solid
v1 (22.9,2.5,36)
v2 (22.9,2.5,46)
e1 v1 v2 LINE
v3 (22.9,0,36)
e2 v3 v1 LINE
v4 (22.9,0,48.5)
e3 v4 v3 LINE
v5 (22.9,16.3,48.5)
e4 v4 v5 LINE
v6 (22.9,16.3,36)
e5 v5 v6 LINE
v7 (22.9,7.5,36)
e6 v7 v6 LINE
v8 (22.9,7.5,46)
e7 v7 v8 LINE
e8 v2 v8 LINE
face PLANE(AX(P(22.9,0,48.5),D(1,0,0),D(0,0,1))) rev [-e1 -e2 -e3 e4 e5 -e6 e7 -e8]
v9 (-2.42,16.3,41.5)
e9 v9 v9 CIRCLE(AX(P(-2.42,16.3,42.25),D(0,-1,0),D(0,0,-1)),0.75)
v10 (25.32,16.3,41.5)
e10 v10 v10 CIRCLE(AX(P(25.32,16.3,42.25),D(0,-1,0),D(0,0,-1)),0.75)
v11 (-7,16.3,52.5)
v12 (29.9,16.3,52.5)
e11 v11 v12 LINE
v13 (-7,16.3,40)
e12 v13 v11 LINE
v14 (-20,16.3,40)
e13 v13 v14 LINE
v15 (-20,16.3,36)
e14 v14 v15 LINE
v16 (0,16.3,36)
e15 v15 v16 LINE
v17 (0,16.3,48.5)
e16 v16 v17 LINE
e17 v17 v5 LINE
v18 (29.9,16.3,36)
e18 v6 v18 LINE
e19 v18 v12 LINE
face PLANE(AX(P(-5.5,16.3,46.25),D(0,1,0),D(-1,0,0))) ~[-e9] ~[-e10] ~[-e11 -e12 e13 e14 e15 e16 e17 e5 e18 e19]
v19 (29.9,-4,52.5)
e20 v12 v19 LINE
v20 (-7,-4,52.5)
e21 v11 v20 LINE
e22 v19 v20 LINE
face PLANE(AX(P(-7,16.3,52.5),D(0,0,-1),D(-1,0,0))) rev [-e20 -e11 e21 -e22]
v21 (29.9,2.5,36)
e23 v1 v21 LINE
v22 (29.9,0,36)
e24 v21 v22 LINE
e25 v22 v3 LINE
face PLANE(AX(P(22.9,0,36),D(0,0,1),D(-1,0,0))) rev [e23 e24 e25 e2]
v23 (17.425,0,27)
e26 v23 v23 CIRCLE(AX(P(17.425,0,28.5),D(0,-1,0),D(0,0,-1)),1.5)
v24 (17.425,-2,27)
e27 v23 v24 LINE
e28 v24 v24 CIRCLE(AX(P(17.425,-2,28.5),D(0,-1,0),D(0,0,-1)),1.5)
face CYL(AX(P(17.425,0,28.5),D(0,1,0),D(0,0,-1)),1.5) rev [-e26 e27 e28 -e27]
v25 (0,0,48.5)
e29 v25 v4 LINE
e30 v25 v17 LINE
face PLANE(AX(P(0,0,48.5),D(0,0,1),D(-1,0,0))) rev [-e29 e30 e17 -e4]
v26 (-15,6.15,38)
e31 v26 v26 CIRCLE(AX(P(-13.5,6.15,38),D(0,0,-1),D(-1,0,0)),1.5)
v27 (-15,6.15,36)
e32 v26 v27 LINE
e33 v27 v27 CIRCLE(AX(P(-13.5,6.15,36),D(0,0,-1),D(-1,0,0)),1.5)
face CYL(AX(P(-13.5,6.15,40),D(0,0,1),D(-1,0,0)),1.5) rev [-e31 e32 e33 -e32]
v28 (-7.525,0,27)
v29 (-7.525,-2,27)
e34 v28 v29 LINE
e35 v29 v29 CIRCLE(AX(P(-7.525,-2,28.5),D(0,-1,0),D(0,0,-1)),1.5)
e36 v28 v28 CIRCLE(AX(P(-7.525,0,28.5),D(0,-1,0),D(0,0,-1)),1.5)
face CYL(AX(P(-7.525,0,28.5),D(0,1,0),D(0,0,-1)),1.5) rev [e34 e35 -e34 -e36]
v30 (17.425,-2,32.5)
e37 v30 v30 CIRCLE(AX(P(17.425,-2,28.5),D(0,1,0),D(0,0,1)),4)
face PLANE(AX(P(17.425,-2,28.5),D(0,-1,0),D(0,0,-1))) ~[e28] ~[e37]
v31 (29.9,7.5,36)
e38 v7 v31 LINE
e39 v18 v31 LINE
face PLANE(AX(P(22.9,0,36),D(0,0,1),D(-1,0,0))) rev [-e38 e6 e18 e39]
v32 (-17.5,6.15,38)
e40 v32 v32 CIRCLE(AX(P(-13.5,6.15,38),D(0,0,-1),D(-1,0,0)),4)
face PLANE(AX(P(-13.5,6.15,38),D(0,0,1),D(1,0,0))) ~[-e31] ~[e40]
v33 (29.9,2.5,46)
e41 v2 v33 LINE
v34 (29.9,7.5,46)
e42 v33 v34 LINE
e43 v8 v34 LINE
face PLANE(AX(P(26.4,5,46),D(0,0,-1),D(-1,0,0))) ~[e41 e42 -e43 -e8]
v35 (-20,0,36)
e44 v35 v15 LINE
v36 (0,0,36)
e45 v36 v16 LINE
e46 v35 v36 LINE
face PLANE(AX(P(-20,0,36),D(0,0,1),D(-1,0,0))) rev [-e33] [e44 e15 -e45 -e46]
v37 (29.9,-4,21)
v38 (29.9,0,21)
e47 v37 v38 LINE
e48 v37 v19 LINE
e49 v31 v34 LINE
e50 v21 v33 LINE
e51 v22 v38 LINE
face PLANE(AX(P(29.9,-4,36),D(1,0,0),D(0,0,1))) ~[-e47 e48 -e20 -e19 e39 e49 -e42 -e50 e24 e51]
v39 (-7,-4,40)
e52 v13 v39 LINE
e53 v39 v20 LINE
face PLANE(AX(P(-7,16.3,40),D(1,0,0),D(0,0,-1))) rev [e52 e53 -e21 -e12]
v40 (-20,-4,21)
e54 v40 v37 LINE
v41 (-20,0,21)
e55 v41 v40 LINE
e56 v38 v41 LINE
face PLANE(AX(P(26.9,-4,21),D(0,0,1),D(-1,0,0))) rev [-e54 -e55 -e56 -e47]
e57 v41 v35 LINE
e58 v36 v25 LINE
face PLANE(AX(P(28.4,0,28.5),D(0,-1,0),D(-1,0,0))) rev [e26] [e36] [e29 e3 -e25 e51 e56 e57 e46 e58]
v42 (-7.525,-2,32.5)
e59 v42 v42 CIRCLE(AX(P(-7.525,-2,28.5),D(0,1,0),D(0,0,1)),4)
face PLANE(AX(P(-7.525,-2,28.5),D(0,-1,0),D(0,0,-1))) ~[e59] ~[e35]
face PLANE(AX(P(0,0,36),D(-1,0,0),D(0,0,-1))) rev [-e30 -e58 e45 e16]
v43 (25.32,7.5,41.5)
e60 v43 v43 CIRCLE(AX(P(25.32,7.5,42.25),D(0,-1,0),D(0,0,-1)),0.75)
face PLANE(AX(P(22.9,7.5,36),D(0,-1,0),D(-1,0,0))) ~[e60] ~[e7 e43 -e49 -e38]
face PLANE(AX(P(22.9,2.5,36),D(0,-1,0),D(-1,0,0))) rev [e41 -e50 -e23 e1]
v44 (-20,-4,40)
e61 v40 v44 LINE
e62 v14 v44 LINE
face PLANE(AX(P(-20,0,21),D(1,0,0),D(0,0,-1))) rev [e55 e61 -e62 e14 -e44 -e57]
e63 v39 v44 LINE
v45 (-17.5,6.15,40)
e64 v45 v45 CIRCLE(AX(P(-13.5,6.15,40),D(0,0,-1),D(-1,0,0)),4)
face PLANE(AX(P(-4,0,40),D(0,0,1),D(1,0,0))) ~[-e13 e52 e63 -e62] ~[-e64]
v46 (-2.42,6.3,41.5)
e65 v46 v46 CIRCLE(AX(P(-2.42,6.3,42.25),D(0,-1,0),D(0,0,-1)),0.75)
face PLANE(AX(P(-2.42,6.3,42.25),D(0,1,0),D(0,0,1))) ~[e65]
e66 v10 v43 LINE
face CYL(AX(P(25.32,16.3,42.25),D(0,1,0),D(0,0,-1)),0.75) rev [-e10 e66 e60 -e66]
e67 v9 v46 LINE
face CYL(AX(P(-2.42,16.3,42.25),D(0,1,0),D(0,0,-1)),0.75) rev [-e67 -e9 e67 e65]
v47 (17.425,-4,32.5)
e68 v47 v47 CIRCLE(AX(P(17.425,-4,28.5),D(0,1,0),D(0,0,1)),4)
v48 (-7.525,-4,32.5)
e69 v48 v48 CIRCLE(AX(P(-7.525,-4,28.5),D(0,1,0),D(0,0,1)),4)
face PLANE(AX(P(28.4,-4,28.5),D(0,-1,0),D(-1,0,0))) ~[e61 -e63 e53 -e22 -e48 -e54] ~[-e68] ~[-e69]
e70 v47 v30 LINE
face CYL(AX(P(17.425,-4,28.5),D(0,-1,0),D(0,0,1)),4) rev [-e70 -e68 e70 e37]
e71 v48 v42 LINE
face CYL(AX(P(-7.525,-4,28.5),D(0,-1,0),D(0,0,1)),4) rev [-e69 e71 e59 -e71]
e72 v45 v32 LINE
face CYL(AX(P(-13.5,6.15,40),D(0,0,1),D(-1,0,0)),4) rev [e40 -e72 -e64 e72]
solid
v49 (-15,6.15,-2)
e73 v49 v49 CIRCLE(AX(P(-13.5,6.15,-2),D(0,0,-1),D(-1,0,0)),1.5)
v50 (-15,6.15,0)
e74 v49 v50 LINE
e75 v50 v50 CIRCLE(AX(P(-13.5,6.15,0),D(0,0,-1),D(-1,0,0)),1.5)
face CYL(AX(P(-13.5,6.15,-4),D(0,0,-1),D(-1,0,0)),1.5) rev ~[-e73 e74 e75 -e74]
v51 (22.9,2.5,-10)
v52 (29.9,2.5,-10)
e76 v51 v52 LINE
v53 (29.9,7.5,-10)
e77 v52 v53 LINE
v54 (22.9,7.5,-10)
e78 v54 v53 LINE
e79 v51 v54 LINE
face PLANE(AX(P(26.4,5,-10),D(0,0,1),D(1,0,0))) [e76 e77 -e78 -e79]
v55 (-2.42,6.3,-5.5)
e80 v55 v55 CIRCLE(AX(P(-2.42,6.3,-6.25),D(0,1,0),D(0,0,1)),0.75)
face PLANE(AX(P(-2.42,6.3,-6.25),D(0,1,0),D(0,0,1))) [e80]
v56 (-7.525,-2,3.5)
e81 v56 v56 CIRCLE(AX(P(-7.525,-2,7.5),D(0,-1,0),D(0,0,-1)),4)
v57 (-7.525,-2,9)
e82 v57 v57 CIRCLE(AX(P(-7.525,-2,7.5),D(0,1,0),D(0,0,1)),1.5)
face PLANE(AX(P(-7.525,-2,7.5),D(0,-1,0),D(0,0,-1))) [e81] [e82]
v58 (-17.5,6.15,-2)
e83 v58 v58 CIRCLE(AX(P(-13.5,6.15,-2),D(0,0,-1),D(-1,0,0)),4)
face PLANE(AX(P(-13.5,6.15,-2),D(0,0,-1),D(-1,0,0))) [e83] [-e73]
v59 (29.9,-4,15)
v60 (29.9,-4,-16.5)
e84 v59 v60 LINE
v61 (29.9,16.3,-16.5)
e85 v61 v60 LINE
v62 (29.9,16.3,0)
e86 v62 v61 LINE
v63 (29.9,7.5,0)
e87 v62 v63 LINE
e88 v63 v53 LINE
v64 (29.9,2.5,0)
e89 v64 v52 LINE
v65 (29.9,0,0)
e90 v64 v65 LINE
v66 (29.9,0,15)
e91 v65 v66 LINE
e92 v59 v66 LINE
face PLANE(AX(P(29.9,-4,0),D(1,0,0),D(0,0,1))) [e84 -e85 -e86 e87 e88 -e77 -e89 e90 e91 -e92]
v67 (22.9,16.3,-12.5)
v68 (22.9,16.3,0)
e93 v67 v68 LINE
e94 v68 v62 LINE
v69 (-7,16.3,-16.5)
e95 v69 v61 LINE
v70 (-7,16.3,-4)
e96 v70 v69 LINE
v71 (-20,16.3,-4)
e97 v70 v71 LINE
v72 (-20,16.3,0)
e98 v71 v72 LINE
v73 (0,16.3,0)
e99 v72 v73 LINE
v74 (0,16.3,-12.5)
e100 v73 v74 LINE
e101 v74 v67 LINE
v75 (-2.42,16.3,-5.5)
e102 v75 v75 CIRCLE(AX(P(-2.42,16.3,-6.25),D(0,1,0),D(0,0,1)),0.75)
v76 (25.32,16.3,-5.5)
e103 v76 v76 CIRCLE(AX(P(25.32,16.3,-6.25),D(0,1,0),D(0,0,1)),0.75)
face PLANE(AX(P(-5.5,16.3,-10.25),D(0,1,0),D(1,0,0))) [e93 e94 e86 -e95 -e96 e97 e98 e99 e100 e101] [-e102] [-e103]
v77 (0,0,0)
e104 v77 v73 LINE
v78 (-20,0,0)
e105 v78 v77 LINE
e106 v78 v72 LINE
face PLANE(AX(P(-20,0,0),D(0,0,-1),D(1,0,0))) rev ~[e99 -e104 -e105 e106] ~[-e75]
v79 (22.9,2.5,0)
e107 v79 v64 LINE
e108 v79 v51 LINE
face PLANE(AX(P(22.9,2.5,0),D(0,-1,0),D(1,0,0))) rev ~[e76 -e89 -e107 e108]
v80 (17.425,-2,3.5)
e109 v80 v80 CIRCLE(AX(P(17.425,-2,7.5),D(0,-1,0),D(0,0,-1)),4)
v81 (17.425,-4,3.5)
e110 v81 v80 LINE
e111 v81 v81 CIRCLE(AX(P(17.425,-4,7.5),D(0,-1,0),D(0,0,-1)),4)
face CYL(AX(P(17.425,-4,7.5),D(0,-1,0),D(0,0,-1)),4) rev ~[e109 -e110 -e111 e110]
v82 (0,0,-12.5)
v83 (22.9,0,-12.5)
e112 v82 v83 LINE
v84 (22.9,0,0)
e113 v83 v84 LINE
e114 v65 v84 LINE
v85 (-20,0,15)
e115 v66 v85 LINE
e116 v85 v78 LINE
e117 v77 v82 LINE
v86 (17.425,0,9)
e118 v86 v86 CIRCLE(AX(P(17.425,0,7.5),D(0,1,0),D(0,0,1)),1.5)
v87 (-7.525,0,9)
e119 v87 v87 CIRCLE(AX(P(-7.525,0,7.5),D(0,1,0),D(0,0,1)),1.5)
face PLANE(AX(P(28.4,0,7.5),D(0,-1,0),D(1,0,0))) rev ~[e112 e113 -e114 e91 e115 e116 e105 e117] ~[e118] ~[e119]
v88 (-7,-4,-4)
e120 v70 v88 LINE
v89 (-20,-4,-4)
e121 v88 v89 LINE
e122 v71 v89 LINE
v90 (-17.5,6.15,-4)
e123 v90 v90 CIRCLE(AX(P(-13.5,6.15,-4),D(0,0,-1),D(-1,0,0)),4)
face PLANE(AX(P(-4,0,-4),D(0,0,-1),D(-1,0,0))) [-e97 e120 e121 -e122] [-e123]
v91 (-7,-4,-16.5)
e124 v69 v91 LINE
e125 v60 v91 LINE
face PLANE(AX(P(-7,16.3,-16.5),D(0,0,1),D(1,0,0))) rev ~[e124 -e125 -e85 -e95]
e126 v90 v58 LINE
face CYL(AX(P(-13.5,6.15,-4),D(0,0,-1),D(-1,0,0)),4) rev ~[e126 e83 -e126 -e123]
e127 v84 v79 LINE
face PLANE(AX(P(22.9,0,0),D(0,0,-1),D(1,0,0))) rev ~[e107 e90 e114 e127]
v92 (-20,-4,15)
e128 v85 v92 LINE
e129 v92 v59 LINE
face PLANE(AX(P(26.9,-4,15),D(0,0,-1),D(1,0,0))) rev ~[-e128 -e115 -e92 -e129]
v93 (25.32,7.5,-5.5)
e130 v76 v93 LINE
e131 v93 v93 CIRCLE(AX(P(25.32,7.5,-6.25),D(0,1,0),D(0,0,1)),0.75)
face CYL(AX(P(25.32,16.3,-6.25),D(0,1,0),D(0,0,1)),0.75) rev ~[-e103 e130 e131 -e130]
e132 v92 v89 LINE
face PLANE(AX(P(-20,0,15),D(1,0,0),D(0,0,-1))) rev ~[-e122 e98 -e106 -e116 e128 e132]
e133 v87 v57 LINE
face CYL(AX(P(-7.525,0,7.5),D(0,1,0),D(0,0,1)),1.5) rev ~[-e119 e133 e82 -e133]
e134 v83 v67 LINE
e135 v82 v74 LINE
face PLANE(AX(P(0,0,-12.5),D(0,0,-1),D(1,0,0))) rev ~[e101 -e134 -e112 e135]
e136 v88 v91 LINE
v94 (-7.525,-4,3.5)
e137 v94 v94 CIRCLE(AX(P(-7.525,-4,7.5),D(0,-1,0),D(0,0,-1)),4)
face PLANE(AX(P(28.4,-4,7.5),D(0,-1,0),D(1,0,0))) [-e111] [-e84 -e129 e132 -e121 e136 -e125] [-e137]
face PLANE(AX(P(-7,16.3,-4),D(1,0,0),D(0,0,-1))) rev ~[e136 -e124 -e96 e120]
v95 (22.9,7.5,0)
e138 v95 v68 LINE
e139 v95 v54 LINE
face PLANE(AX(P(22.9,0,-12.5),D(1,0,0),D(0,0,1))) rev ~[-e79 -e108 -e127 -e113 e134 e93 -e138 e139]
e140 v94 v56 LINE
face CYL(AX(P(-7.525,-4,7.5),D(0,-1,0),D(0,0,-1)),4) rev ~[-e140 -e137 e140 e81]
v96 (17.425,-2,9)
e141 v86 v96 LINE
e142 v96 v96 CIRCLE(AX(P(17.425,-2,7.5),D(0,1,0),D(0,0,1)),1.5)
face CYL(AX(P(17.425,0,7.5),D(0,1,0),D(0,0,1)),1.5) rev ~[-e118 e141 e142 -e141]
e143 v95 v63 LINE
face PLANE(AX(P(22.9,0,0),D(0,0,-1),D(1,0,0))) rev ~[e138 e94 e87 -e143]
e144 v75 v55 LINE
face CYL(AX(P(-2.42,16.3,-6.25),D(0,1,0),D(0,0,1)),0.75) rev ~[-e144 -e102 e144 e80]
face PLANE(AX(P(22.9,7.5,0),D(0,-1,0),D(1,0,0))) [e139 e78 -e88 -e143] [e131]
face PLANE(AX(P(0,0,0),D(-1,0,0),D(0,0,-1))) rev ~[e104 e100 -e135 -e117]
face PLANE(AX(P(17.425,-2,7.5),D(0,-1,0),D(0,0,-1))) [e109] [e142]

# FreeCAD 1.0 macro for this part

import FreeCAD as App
import Part
import Sketcher
from FreeCAD import Vector


def add_polygon(sketch, points):
    """Adds a closed chain of lines whose ends are joined by coincident constraints."""
    first, n = sketch.GeometryCount, len(points)
    for a, b in zip(points, points[1:] + points[:1]):
        sketch.addGeometry(Part.LineSegment(App.Vector(*a, 0), App.Vector(*b, 0)), False)
    for i in range(n):
        sketch.addConstraint(Sketcher.Constraint("Coincident", first + i, 2, first + (i + 1) % n, 1))

doc = App.newDocument("Part")
body = doc.addObject("PartDesign::Body", "Body")

sketch1 = body.newObject("Sketcher::SketchObject", "Sketch")
sketch1.AttachmentSupport = (doc.getObject("XZ_Plane"), [""])
sketch1.MapMode = "FlatFace"
add_polygon(sketch1, [(-20, 0), (0, 0), (0, -12.5), (22.9, -12.5), (22.9, 0), (26.9, 0), (26.9, -16.5), (-4, -16.5), (-4, -4), (-20, -4)])
sketch1.addConstraint([
    Sketcher.Constraint("Horizontal", 0),
    Sketcher.Constraint("Vertical", 1),
    Sketcher.Constraint("Horizontal", 2),
    Sketcher.Constraint("Vertical", 3),
    Sketcher.Constraint("Horizontal", 4),
    Sketcher.Constraint("Vertical", 5),
    Sketcher.Constraint("Horizontal", 6),
    Sketcher.Constraint("Vertical", 7),
    Sketcher.Constraint("Horizontal", 8),
    Sketcher.Constraint("Vertical", 9),
    Sketcher.Constraint("Coincident", 0, 2, -1, 1),
    Sketcher.Constraint("PointOnObject", 3, 2, -1),
    Sketcher.Constraint("Equal", 3, 7),
    Sketcher.Constraint("Equal", 4, 9),
    Sketcher.Constraint("DistanceX", 0, 1, 0, 2, 20.0),
    Sketcher.Constraint("DistanceX", 4, 1, 4, 2, 4.0),
    Sketcher.Constraint("DistanceX", 8, 2, 8, 1, 16.0),
    Sketcher.Constraint("DistanceX", 2, 1, 2, 2, 22.9),
    Sketcher.Constraint("DistanceY", 1, 2, 1, 1, 12.5),
])
pad1 = body.newObject("PartDesign::Pad", "Pad")
pad1.Profile = sketch1
pad1.Length = 16.3
pad1.Reversed = True

sketch2 = body.newObject("Sketcher::SketchObject", "Sketch001")
sketch2.AttachmentSupport = (doc.getObject("XZ_Plane"), [""])
sketch2.MapMode = "FlatFace"
add_polygon(sketch2, [(-20, 15), (-20, -4), (-4, -4), (-4, -16), (27, -16), (27, 15)])
sketch2.addConstraint([
    Sketcher.Constraint("Vertical", 0),
    Sketcher.Constraint("Horizontal", 1),
    Sketcher.Constraint("Vertical", 2),
    Sketcher.Constraint("Horizontal", 3),
    Sketcher.Constraint("Vertical", 4),
    Sketcher.Constraint("Horizontal", 5),
    Sketcher.Constraint("DistanceX", 1, 1, 1, 2, 16.0),
    Sketcher.Constraint("DistanceY", 0, 2, 0, 1, 19.0),
    Sketcher.Constraint("DistanceX", 3, 1, 3, 2, 30.9),
    Sketcher.Constraint("DistanceY", 2, 2, 2, 1, 12.5),
    Sketcher.Constraint("DistanceX", 0, 2, -1, 1, 20.0),
    Sketcher.Constraint("DistanceY", 0, 2, -1, 1, 4.0),
])
pad2 = body.newObject("PartDesign::Pad", "Pad001")
pad2.Profile = sketch2
pad2.Length = 4

sketch3 = body.newObject("Sketcher::SketchObject", "Sketch002")
sketch3.AttachmentSupport = (doc.getObject("XZ_Plane"), [""])
sketch3.MapMode = "FlatFace"
sketch3.AttachmentOffset = App.Placement(Vector(0, 0, -16.3), App.Rotation())
add_polygon(sketch3, [(-7, -16.5), (-7, -4), (-4, -4), (-4, -16.5)])
add_polygon(sketch3, [(26.9, -16.5), (26.9, 0), (29.9, 0), (29.9, -16.5)])
sketch3.addConstraint([
    Sketcher.Constraint("Vertical", 0),
    Sketcher.Constraint("Horizontal", 1),
    Sketcher.Constraint("Vertical", 2),
    Sketcher.Constraint("Horizontal", 3),
    Sketcher.Constraint("Vertical", 4),
    Sketcher.Constraint("Horizontal", 5),
    Sketcher.Constraint("Vertical", 6),
    Sketcher.Constraint("Horizontal", 7),
    Sketcher.Constraint("PointOnObject", 4, 2, -1),
    Sketcher.Constraint("Horizontal", 3, 2, 6, 2),
    Sketcher.Constraint("Equal", 3, 5),
    Sketcher.Constraint("DistanceX", 1, 1, 1, 2, 3.0),
    Sketcher.Constraint("DistanceY", 0, 1, 0, 2, 12.5),
    Sketcher.Constraint("DistanceY", 4, 1, 4, 2, 16.5),
    Sketcher.Constraint("DistanceX", 0, 2, -1, 1, 7.0),
    Sketcher.Constraint("DistanceX", -1, 1, 4, 2, 26.9),
])
pad3 = body.newObject("PartDesign::Pad", "Pad002")
pad3.Profile = sketch3
pad3.Length = 20.3

sketch4 = body.newObject("Sketcher::SketchObject", "Sketch003")
sketch4.AttachmentSupport = (doc.getObject("XZ_Plane"), [""])
sketch4.MapMode = "FlatFace"
sketch4.AttachmentOffset = App.Placement(Vector(0, 0, 4), App.Rotation())
add_polygon(sketch4, [(26.9, 15), (26.9, 0), (29.9, 0), (29.9, 15)])
sketch4.addConstraint([
    Sketcher.Constraint("Vertical", 0),
    Sketcher.Constraint("Horizontal", 1),
    Sketcher.Constraint("Vertical", 2),
    Sketcher.Constraint("Horizontal", 3),
    Sketcher.Constraint("PointOnObject", 0, 2, -1),
    Sketcher.Constraint("DistanceX", 1, 1, 1, 2, 3.0),
    Sketcher.Constraint("DistanceY", 0, 2, 0, 1, 15.0),
    Sketcher.Constraint("DistanceX", -1, 1, 0, 2, 26.9),
])
pad4 = body.newObject("PartDesign::Pad", "Pad003")
pad4.Profile = sketch4
pad4.Length = 4
pad4.Reversed = True

sketch5 = body.newObject("Sketcher::SketchObject", "Sketch004")
sketch5.AttachmentSupport = (doc.getObject("XZ_Plane"), [""])
sketch5.MapMode = "FlatFace"
sketch5.addGeometry([
    Part.Circle(Vector(-7.5, 7.5, 0), Vector(0, 0, 1), 1.5),
    Part.Circle(Vector(17.4, 7.5, 0), Vector(0, 0, 1), 1.5),
], False)
sketch5.addConstraint([
    Sketcher.Constraint("Equal", 0, 1),
    Sketcher.Constraint("Horizontal", 0, 3, 1, 3),
    Sketcher.Constraint("Diameter", 0, 3.0),
    Sketcher.Constraint("DistanceY", -1, 1, 0, 3, 7.5),
    Sketcher.Constraint("DistanceX", 0, 3, 1, 3, 24.95),
    Sketcher.Constraint("DistanceX", 0, 3, -1, 1, 7.525),
])
pocket1 = body.newObject("PartDesign::Pocket", "Pocket")
pocket1.Profile = sketch5
pocket1.Type = "ThroughAll"
pocket1.Reversed = True

sketch6 = body.newObject("Sketcher::SketchObject", "Sketch005")
sketch6.AttachmentSupport = (doc.getObject("XZ_Plane"), [""])
sketch6.MapMode = "FlatFace"
sketch6.AttachmentOffset = App.Placement(Vector(0, 0, 4), App.Rotation())
sketch6.addGeometry([
    Part.Circle(Vector(-7.5, 7.5, 0), Vector(0, 0, 1), 4),
    Part.Circle(Vector(17.4, 7.5, 0), Vector(0, 0, 1), 4),
], False)
sketch6.addConstraint([
    Sketcher.Constraint("Equal", 0, 1),
    Sketcher.Constraint("Horizontal", 0, 3, 1, 3),
    Sketcher.Constraint("Diameter", 0, 8.0),
    Sketcher.Constraint("DistanceY", -1, 1, 0, 3, 7.5),
    Sketcher.Constraint("DistanceX", 0, 3, 1, 3, 24.95),
    Sketcher.Constraint("DistanceX", 0, 3, -1, 1, 7.525),
])
pocket2 = body.newObject("PartDesign::Pocket", "Pocket001")
pocket2.Profile = sketch6
pocket2.Length = 2

sketch7 = body.newObject("Sketcher::SketchObject", "Sketch006")
sketch7.AttachmentSupport = (doc.getObject("XY_Plane"), [""])
sketch7.MapMode = "FlatFace"
sketch7.AttachmentOffset = App.Placement(Vector(0, 0, -4), App.Rotation())
sketch7.addGeometry(Part.Circle(Vector(-13.5, 6.2, 0), Vector(0, 0, 1), 1.5), False)
sketch7.addConstraint([
    Sketcher.Constraint("Diameter", 0, 3.0),
    Sketcher.Constraint("DistanceX", 0, 3, -1, 1, 13.5),
    Sketcher.Constraint("DistanceY", -1, 1, 0, 3, 6.15),
])
pocket3 = body.newObject("PartDesign::Pocket", "Pocket002")
pocket3.Profile = sketch7
pocket3.Type = "ThroughAll"
pocket3.Reversed = True

sketch8 = body.newObject("Sketcher::SketchObject", "Sketch007")
sketch8.AttachmentSupport = (doc.getObject("XY_Plane"), [""])
sketch8.MapMode = "FlatFace"
sketch8.AttachmentOffset = App.Placement(Vector(0, 0, -4), App.Rotation())
sketch8.addGeometry(Part.Circle(Vector(-13.5, 6.2, 0), Vector(0, 0, 1), 4), False)
sketch8.addConstraint([
    Sketcher.Constraint("Diameter", 0, 8.0),
    Sketcher.Constraint("DistanceX", 0, 3, -1, 1, 13.5),
    Sketcher.Constraint("DistanceY", -1, 1, 0, 3, 6.15),
])
pocket4 = body.newObject("PartDesign::Pocket", "Pocket003")
pocket4.Profile = sketch8
pocket4.Length = 2
pocket4.Reversed = True

sketch9 = body.newObject("Sketcher::SketchObject", "Sketch008")
sketch9.AttachmentSupport = (doc.getObject("XZ_Plane"), [""])
sketch9.MapMode = "FlatFace"
sketch9.AttachmentOffset = App.Placement(Vector(0, 0, -16.3), App.Rotation())
sketch9.addGeometry([
    Part.Circle(Vector(-2.4, -6.2, 0), Vector(0, 0, 1), 0.8),
    Part.Circle(Vector(25.3, -6.2, 0), Vector(0, 0, 1), 0.8),
], False)
sketch9.addConstraint([
    Sketcher.Constraint("Equal", 0, 1),
    Sketcher.Constraint("Horizontal", 0, 3, 1, 3),
    Sketcher.Constraint("Diameter", 0, 1.5),
    Sketcher.Constraint("DistanceX", 0, 3, -1, 1, 2.42),
    Sketcher.Constraint("DistanceY", 0, 3, -1, 1, 6.25),
    Sketcher.Constraint("DistanceX", -1, 1, 1, 3, 25.32),
])
pocket5 = body.newObject("PartDesign::Pocket", "Pocket004")
pocket5.Profile = sketch9
pocket5.Length = 10
pocket5.Reversed = True

sketch10 = body.newObject("Sketcher::SketchObject", "Sketch009")
sketch10.AttachmentSupport = (doc.getObject("XY_Plane"), [""])
sketch10.MapMode = "FlatFace"
add_polygon(sketch10, [(23, 8), (23, 2), (30, 2), (30, 8)])
sketch10.addConstraint([
    Sketcher.Constraint("Vertical", 0),
    Sketcher.Constraint("Horizontal", 1),
    Sketcher.Constraint("Vertical", 2),
    Sketcher.Constraint("Horizontal", 3),
    Sketcher.Constraint("DistanceX", 1, 1, 1, 2, 7.0),
    Sketcher.Constraint("DistanceY", 0, 2, 0, 1, 5.0),
    Sketcher.Constraint("DistanceX", -1, 1, 0, 2, 22.9),
    Sketcher.Constraint("DistanceY", -1, 1, 0, 2, 2.5),
])
pocket6 = body.newObject("PartDesign::Pocket", "Pocket005")
pocket6.Profile = sketch10
pocket6.Length = 10
body2 = doc.addObject("PartDesign::Body", "Body001")
doc.recompute()

mirroring = doc.addObject("Part::Mirroring", "Mirroring")
mirroring.Source = body
mirroring.Base = Vector(0, 0, 18)
mirroring.Normal = Vector(0, 0, 1)
body2.BaseFeature = mirroring
doc.recompute()
mirroring.Visibility = False

doc.recompute()
